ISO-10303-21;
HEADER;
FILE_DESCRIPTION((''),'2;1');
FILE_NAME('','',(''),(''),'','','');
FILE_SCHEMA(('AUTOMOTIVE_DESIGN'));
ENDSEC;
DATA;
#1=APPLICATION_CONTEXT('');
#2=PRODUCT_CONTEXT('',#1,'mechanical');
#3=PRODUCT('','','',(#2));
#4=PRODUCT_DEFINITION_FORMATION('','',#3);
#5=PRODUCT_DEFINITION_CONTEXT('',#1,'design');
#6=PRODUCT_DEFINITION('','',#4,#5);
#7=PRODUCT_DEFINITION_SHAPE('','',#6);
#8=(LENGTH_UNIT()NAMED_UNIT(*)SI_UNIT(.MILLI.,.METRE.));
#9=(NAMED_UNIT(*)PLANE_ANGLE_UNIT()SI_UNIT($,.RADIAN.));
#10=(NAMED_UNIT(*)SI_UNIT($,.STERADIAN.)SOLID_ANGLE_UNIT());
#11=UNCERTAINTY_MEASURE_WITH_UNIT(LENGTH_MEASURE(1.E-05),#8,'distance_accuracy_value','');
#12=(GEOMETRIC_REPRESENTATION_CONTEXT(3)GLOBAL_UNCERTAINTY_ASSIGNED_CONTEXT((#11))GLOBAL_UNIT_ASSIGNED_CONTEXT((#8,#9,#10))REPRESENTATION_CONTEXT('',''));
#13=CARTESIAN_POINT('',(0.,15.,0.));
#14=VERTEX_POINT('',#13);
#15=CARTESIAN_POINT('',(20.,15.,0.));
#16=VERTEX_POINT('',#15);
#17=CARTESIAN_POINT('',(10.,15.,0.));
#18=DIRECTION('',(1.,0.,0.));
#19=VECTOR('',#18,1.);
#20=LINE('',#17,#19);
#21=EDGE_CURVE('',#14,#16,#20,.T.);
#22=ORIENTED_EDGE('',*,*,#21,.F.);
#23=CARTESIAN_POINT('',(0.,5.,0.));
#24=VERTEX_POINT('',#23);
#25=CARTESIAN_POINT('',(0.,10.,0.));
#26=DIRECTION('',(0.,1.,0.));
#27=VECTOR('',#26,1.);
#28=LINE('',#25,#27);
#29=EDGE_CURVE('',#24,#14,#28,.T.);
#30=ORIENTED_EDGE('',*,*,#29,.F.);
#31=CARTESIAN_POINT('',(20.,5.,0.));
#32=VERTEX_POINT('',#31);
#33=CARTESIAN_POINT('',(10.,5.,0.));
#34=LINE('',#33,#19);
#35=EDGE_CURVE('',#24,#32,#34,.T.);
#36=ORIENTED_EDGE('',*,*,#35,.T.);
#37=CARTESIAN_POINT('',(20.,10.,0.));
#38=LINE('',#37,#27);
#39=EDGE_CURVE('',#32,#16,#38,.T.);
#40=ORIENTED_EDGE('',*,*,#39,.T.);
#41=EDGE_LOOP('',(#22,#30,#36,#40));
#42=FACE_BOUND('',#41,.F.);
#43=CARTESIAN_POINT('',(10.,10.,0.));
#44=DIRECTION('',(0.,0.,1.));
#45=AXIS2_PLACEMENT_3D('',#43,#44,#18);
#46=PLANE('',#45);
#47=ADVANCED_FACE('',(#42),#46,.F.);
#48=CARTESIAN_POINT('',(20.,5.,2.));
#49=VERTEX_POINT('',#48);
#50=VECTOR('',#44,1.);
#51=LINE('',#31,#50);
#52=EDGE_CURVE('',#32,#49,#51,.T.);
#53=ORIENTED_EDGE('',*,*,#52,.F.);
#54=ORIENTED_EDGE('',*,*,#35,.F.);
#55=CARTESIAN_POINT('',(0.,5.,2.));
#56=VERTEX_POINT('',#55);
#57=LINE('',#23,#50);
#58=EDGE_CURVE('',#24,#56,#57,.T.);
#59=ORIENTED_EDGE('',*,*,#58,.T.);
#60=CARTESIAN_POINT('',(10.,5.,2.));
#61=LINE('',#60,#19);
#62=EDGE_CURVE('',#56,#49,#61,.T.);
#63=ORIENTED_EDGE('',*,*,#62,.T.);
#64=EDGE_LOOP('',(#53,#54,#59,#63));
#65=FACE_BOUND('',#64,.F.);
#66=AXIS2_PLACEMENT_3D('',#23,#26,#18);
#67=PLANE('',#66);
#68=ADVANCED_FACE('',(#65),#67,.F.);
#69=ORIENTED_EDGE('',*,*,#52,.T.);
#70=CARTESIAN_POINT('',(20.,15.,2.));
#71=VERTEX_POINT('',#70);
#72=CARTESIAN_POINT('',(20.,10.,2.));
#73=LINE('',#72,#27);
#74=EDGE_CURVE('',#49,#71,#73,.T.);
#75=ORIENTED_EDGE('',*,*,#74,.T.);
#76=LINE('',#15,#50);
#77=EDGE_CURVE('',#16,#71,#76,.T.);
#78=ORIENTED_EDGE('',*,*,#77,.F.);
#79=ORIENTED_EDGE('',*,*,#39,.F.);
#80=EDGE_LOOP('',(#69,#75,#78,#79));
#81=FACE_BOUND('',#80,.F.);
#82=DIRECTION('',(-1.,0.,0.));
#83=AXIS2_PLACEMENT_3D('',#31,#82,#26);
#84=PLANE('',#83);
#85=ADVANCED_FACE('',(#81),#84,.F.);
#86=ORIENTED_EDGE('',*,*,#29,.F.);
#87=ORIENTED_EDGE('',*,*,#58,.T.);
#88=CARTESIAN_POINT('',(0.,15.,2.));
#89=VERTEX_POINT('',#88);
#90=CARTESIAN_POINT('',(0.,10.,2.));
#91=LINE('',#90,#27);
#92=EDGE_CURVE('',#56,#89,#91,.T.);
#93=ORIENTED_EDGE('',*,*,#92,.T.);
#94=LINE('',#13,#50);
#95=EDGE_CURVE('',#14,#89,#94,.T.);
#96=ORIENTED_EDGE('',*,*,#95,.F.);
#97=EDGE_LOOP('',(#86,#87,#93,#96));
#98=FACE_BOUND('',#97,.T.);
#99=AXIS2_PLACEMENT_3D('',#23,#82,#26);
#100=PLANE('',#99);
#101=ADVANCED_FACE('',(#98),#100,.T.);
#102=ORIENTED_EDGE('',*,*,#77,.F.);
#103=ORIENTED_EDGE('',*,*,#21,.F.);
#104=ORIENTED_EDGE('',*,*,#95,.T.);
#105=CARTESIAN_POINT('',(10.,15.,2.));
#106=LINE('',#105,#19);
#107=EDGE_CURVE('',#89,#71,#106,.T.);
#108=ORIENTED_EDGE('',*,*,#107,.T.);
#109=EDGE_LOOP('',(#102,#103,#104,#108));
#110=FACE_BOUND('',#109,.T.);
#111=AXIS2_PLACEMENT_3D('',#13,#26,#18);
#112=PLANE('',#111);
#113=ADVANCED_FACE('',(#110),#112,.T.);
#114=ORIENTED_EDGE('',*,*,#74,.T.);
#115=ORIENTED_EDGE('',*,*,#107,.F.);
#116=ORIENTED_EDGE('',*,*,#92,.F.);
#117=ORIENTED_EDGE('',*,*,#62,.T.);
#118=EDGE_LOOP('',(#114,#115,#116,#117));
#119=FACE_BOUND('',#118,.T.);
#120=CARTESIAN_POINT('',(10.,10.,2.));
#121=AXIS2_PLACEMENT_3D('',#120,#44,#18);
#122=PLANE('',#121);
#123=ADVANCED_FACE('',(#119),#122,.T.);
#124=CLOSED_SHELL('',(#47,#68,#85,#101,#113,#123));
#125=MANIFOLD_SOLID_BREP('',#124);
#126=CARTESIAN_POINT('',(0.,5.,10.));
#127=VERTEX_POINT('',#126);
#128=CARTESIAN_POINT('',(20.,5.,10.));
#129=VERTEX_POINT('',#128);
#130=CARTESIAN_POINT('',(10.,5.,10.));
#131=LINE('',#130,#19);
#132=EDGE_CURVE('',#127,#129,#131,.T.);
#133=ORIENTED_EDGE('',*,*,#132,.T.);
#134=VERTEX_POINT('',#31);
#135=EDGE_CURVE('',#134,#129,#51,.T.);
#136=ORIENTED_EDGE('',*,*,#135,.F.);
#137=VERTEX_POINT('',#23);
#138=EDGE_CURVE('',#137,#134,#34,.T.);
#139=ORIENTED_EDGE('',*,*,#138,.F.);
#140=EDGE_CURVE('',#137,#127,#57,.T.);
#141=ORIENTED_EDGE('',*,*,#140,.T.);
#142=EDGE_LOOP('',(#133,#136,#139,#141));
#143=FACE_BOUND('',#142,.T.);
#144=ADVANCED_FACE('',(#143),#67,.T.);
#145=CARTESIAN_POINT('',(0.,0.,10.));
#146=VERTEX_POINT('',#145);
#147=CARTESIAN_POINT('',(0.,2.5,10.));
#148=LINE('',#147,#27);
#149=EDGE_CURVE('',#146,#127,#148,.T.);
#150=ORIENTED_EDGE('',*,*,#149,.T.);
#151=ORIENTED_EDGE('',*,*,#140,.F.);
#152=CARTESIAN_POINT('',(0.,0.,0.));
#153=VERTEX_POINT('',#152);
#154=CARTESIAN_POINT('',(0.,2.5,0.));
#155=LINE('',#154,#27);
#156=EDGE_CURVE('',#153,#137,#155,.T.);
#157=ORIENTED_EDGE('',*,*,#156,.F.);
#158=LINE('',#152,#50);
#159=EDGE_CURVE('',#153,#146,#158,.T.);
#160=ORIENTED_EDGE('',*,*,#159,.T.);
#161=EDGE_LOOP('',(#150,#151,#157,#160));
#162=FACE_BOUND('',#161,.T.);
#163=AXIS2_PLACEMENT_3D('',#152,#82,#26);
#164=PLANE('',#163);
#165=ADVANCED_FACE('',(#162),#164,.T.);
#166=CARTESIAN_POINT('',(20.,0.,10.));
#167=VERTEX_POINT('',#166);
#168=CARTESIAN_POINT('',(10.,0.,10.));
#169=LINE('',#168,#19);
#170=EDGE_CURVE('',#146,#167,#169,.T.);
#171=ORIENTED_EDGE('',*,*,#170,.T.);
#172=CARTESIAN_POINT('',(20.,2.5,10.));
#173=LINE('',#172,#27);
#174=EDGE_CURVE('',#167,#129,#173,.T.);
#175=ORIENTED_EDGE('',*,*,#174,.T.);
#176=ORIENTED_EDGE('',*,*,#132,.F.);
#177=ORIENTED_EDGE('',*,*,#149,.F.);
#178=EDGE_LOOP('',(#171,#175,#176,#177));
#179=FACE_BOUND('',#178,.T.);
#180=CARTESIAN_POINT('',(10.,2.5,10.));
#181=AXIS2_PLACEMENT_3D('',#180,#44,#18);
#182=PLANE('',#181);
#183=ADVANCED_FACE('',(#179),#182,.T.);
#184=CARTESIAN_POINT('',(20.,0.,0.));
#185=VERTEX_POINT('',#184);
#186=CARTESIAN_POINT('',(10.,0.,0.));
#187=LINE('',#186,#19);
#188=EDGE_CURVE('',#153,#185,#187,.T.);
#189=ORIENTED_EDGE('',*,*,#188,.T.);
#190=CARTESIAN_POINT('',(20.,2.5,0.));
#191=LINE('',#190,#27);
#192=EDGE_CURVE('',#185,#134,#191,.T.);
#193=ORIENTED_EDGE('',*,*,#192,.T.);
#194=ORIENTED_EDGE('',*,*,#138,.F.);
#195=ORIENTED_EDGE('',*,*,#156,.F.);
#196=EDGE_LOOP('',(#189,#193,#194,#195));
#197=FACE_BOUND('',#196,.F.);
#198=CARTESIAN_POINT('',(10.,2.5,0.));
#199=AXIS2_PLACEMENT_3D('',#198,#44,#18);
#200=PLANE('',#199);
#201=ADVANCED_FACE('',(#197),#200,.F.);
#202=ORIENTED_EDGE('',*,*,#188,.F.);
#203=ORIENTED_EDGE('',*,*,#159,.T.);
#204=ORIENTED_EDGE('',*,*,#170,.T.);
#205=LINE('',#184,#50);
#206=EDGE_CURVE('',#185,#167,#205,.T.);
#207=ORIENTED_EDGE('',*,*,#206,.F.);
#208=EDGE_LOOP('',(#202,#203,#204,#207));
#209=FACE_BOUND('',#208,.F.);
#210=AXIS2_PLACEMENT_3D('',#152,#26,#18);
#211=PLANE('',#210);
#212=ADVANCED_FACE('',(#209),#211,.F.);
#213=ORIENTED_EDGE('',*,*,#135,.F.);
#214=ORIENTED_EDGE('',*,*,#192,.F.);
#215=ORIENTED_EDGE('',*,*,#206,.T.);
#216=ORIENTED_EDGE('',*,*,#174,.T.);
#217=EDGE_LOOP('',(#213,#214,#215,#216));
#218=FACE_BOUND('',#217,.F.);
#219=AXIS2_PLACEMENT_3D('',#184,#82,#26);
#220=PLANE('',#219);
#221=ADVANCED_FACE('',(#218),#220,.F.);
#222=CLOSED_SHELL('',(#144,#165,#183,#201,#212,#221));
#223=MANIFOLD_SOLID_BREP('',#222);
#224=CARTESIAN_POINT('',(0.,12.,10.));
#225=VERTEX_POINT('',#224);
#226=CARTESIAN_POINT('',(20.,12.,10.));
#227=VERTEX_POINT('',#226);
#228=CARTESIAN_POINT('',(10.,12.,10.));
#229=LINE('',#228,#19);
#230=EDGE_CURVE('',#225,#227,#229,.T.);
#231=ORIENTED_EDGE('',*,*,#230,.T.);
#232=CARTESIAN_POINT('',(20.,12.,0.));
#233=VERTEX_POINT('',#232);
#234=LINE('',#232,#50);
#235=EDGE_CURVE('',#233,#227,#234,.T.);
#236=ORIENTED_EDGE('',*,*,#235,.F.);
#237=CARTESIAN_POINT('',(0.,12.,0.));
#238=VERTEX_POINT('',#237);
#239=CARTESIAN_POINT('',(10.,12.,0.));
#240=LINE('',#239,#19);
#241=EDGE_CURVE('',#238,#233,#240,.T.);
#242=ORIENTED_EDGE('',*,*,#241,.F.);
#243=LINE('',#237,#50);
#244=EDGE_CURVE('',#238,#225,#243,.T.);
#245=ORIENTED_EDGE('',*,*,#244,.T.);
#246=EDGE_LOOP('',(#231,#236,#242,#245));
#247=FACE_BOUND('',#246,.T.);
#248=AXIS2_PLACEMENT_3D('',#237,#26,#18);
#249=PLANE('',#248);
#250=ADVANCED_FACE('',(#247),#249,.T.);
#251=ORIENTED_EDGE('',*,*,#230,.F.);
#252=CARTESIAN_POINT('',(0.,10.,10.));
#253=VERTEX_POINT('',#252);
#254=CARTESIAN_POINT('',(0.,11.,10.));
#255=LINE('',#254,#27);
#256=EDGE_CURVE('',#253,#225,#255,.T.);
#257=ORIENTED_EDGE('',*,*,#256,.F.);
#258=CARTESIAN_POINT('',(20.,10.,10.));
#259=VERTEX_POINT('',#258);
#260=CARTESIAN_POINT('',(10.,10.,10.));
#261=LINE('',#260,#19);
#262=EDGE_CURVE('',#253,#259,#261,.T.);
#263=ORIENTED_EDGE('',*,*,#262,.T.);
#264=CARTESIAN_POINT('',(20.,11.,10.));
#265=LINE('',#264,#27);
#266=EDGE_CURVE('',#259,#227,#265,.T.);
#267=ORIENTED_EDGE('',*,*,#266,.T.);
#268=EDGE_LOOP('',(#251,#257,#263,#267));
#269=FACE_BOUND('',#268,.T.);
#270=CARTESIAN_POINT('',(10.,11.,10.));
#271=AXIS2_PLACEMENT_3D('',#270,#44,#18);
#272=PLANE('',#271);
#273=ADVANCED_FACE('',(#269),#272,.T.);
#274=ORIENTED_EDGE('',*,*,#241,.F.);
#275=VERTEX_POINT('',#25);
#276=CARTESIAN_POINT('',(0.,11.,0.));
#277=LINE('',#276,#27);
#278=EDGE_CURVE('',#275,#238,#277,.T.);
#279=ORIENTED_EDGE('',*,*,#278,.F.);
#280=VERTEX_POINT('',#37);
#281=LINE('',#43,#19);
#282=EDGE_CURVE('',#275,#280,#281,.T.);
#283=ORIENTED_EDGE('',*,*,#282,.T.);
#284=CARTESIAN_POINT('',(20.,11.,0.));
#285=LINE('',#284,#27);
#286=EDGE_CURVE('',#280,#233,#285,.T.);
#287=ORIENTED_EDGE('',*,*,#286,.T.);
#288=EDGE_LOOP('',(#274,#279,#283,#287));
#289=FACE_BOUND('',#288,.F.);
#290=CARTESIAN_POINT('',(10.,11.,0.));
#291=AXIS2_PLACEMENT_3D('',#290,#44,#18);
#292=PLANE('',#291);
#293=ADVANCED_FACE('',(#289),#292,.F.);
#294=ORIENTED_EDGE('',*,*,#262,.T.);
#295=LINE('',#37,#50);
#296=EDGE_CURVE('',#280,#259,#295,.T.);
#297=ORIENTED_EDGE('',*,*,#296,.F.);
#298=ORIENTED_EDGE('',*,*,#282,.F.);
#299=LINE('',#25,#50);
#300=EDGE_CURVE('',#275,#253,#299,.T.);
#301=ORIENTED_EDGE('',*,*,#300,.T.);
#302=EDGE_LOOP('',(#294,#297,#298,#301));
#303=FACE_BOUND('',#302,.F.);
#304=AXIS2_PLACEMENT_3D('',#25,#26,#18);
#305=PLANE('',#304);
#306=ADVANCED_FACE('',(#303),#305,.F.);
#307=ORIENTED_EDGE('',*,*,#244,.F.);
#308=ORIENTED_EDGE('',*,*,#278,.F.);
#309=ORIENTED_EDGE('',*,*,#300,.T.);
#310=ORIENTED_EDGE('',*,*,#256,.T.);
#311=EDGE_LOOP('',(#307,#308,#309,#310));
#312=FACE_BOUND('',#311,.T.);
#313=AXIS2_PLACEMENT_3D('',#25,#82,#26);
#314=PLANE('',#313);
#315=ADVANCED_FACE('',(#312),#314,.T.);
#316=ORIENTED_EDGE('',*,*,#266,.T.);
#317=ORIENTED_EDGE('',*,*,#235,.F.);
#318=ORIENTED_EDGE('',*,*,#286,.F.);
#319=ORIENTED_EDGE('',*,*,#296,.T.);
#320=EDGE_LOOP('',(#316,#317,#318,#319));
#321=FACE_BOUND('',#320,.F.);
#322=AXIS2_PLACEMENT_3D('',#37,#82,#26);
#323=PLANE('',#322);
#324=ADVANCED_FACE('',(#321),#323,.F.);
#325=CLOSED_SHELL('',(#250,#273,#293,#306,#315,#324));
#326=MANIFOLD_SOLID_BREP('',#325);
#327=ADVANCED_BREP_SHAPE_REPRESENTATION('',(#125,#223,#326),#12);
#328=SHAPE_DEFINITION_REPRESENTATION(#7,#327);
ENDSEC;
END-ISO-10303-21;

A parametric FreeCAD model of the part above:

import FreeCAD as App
import Part
import Sketcher
Q = App.Units.Quantity


def add_polygon(sketch, points):
    """Adds a closed chain of lines whose ends are joined by coincident constraints."""
    first, n = sketch.GeometryCount, len(points)
    for a, b in zip(points, points[1:] + points[:1]):
        sketch.addGeometry(Part.LineSegment(App.Vector(*a, 0), App.Vector(*b, 0)), False)
    for i in range(n):
        sketch.addConstraint(Sketcher.Constraint("Coincident", first + i, 2, first + (i + 1) % n, 1))

doc = App.newDocument("Part")
body = doc.addObject("PartDesign::Body", "Body")

# Sketch on XY plane
sketch1 = doc.addObject("Sketcher::SketchObject", "Sketch")
body.addObject(sketch1)
sketch1.AttachmentSupport = (doc.XY_Plane, [""])
sketch1.MapMode = "FlatFace"
add_polygon(sketch1, [(0, 5), (0, 0), (20, 0), (20, 5)])  # lines 0-3
sketch1.addConstraint([
    Sketcher.Constraint("Vertical", 0),
    Sketcher.Constraint("Horizontal", 1),
    Sketcher.Constraint("Vertical", 2),
    Sketcher.Constraint("Horizontal", 3),
    Sketcher.Constraint("Coincident", 0, 2, -1, 1),
    Sketcher.Constraint("DistanceX", 1, 1, 1, 2, Q("20 mm")),
    Sketcher.Constraint("DistanceY", 0, 2, 0, 1, Q("5 mm")),
])
pad1 = doc.addObject("PartDesign::Pad", "Pad")
body.addObject(pad1)
pad1.Profile = sketch1
pad1.Length = 10
body2 = doc.addObject("PartDesign::Body", "Body001")

# Sketch on XY plane
sketch2 = doc.addObject("Sketcher::SketchObject", "Sketch001")
body2.addObject(sketch2)
sketch2.AttachmentSupport = (doc.getObject("XY_Plane001"), [""])
sketch2.MapMode = "FlatFace"
add_polygon(sketch2, [(0, 15), (0, 5), (20, 5), (20, 15)])  # lines 0-3
sketch2.addConstraint([
    Sketcher.Constraint("Vertical", 0),
    Sketcher.Constraint("Horizontal", 1),
    Sketcher.Constraint("Vertical", 2),
    Sketcher.Constraint("Horizontal", 3),
    Sketcher.Constraint("PointOnObject", 0, 2, -2),
    Sketcher.Constraint("DistanceX", 1, 1, 1, 2, Q("20 mm")),
    Sketcher.Constraint("DistanceY", 0, 2, 0, 1, Q("10 mm")),
    Sketcher.Constraint("DistanceY", -1, 1, 0, 2, Q("5 mm")),
])
pad2 = doc.addObject("PartDesign::Pad", "Pad001")
body2.addObject(pad2)
pad2.Profile = sketch2
pad2.Length = 2
body3 = doc.addObject("PartDesign::Body", "Body002")

# Sketch on XY plane
sketch3 = doc.addObject("Sketcher::SketchObject", "Sketch002")
body3.addObject(sketch3)
sketch3.AttachmentSupport = (doc.getObject("XY_Plane002"), [""])
sketch3.MapMode = "FlatFace"
add_polygon(sketch3, [(0, 12), (0, 10), (20, 10), (20, 12)])  # lines 0-3
sketch3.addConstraint([
    Sketcher.Constraint("Vertical", 0),
    Sketcher.Constraint("Horizontal", 1),
    Sketcher.Constraint("Vertical", 2),
    Sketcher.Constraint("Horizontal", 3),
    Sketcher.Constraint("PointOnObject", 0, 2, -2),
    Sketcher.Constraint("DistanceX", 1, 1, 1, 2, Q("20 mm")),
    Sketcher.Constraint("DistanceY", 0, 2, 0, 1, Q("2 mm")),
    Sketcher.Constraint("DistanceY", -1, 1, 0, 2, Q("10 mm")),
])
pad3 = doc.addObject("PartDesign::Pad", "Pad002")
body3.addObject(pad3)
pad3.Profile = sketch3
pad3.Length = 10

doc.recompute()
